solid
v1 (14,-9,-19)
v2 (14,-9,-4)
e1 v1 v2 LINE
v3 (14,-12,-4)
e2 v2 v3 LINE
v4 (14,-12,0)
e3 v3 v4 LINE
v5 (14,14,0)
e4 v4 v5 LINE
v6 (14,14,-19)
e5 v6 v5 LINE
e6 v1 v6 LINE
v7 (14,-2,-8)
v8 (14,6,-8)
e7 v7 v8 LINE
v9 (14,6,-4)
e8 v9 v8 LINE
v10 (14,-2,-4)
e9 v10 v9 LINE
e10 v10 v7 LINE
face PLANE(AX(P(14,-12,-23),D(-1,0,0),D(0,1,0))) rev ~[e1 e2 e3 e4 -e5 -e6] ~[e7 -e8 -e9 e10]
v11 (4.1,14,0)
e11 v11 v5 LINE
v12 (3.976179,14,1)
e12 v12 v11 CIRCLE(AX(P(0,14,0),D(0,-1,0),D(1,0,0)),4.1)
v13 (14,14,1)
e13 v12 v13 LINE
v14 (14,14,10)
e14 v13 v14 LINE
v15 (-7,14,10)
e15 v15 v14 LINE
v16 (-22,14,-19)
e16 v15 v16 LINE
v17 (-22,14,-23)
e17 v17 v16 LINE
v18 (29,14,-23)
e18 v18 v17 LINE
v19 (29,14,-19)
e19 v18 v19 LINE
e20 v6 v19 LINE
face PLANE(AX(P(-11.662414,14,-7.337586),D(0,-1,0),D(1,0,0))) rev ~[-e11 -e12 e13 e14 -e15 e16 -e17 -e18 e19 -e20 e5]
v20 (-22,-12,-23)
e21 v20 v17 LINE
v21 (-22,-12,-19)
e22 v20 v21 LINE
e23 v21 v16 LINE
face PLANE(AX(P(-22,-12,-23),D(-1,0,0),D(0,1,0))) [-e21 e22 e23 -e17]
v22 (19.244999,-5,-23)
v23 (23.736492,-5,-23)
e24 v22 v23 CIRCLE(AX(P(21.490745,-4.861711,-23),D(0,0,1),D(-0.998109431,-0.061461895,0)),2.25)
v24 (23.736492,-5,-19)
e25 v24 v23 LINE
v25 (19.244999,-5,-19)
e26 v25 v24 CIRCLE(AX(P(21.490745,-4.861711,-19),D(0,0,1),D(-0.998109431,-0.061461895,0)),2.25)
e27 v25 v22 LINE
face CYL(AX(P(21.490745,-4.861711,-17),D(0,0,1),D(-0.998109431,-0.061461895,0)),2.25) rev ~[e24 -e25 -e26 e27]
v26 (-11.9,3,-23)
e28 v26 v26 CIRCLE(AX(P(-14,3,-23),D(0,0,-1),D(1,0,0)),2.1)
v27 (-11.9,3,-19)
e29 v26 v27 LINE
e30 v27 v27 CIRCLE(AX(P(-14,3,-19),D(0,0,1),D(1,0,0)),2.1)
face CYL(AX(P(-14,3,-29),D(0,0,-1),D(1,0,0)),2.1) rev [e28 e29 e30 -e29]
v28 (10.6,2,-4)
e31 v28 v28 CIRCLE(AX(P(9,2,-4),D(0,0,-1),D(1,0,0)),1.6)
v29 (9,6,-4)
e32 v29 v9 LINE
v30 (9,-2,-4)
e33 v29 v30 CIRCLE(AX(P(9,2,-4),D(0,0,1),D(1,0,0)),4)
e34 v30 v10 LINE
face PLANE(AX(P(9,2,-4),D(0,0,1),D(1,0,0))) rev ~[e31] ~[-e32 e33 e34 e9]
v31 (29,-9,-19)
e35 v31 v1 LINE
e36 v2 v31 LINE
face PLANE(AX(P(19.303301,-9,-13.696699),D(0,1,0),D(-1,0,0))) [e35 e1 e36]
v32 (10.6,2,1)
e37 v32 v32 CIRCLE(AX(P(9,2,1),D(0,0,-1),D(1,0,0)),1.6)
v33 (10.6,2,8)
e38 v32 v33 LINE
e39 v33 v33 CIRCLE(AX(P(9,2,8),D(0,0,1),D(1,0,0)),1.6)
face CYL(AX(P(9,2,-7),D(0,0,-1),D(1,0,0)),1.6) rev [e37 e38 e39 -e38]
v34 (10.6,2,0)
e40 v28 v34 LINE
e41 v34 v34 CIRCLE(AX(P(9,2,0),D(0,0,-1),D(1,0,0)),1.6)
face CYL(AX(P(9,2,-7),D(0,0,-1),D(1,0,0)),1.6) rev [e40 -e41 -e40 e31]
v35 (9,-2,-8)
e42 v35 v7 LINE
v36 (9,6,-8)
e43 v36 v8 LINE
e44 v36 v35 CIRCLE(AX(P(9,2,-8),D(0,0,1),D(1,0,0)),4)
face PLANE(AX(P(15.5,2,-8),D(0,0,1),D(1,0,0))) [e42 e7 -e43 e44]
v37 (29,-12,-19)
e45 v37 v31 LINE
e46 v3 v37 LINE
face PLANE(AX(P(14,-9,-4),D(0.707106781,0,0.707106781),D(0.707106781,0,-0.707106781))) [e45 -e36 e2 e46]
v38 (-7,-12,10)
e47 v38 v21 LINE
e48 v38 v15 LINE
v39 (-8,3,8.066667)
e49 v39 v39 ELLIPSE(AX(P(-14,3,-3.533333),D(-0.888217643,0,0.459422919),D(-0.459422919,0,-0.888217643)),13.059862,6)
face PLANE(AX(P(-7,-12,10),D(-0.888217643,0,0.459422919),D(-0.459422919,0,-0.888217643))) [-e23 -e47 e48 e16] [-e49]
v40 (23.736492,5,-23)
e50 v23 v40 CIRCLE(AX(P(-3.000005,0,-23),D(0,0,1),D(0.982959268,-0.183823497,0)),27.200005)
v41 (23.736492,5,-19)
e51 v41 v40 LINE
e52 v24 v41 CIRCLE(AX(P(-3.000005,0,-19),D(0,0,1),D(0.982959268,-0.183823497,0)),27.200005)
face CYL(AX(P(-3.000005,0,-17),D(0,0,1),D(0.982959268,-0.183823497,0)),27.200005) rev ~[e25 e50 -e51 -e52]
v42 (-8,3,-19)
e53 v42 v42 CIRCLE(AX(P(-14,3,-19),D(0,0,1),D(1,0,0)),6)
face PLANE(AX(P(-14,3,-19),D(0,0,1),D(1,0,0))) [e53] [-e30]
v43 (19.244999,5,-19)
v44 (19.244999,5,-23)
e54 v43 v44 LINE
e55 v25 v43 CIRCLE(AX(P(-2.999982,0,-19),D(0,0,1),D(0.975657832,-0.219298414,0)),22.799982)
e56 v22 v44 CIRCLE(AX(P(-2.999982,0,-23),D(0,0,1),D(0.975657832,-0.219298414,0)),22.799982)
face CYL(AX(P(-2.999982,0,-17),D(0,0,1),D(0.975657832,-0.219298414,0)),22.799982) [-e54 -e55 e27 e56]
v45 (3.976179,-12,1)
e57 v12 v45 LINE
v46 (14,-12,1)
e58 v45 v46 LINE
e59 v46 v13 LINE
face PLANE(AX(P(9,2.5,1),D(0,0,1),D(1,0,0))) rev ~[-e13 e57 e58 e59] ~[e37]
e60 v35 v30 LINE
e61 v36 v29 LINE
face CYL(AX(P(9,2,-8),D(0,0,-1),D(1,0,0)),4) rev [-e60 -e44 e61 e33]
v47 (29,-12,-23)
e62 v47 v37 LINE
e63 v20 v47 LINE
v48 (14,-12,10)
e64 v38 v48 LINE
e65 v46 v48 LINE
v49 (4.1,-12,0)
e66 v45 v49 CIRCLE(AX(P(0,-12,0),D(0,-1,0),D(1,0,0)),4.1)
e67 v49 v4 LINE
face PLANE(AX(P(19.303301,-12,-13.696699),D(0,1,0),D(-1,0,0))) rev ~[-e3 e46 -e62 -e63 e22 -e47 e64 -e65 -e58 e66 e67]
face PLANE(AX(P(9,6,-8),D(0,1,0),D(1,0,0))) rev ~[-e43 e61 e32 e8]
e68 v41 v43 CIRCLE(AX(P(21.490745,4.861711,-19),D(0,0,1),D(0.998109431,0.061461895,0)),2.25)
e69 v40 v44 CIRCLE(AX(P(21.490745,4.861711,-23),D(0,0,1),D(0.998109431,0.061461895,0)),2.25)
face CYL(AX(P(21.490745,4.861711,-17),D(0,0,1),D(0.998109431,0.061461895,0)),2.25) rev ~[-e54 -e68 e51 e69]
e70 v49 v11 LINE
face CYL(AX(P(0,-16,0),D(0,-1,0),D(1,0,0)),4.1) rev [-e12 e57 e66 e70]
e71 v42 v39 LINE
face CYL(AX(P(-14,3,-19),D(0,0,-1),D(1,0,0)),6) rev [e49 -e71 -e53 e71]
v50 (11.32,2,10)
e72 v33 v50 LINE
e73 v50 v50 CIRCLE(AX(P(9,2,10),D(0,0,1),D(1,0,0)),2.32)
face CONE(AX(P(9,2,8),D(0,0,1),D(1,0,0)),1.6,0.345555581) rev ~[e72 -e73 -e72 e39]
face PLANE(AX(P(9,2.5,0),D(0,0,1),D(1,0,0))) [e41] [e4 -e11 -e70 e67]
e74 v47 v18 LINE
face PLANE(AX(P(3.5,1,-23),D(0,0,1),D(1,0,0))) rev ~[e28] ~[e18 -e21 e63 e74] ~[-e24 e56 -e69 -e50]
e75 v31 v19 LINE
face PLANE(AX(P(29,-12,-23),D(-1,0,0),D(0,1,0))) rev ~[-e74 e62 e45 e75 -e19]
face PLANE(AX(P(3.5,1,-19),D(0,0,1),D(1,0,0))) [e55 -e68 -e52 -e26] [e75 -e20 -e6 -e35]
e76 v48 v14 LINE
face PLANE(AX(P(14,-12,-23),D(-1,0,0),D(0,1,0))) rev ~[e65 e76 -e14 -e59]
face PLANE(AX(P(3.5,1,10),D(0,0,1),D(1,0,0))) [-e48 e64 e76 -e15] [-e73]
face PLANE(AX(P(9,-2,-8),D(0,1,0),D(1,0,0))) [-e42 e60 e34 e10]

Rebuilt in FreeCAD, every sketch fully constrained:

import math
import FreeCAD as App
import Part
import Sketcher

V = App.Vector
Q = App.Units.Quantity

doc = App.newDocument("Part")
body = doc.addObject("PartDesign::Body", "Body")

# Sketch on XY plane
sketch1 = body.newObject("Sketcher::SketchObject", "Sketch")
sketch1.AttachmentSupport = (doc.getObject("XY_Plane"), [""])
sketch1.MapMode = "FlatFace"
sketch1.AttachmentOffset = App.Placement(V(0, 0, 10), App.Rotation())
sketch1.addGeometry(Part.Circle(V(0, 0, 0), V(0, 0, 1), 6), False)
sketch1.addConstraint(Sketcher.Constraint("Coincident", 0, 3, -1, 1))
sketch1.addConstraint(Sketcher.Constraint("Diameter", 0, Q("12 mm")))
pad1 = body.newObject("PartDesign::Pad", "Pad")
pad1.Profile = sketch1
pad1.Length = 30
body2 = doc.addObject("PartDesign::Body", "Body001")

# Sketch on XY plane
sketch2 = body2.newObject("Sketcher::SketchObject", "Sketch001")
sketch2.AttachmentSupport = (doc.getObject("XY_Plane001"), [""])
sketch2.MapMode = "FlatFace"
sketch2.addGeometry(Part.Circle(V(0, 0, 0), V(0, 0, 1), 2.1), False)
sketch2.addConstraint(Sketcher.Constraint("Coincident", 0, 3, -1, 1))
sketch2.addConstraint(Sketcher.Constraint("Diameter", 0, Q("4.2 mm")))
pad2 = body2.newObject("PartDesign::Pad", "Pad001")
pad2.Profile = sketch2
pad2.Length = 10
doc.recompute()

boolean = body2.newObject("PartDesign::Boolean", "Boolean")
boolean.Type = "Fuse"
boolean.addObjects([body])
body3 = doc.addObject("PartDesign::Body", "Body002")
doc.recompute()

body2.Placement = App.Placement(V(-14, 12, -29), App.Rotation(V(0, 0, 1), 0))
boolean2 = body3.newObject("PartDesign::Boolean", "Boolean001")
boolean2.Type = "Fuse"
boolean2.addObjects([body2])
body4 = doc.addObject("PartDesign::Body", "Body003")

# Sketch on XY plane
sketch3 = body4.newObject("Sketcher::SketchObject", "Sketch002")
sketch3.AttachmentSupport = (doc.getObject("XY_Plane003"), [""])
sketch3.MapMode = "FlatFace"
sketch3.addGeometry(Part.Circle(V(0, 0, 0), V(0, 0, 1), 1.6), False)
sketch3.addConstraint(Sketcher.Constraint("Coincident", 0, 3, -1, 1))
sketch3.addConstraint(Sketcher.Constraint("Diameter", 0, Q("3.2 mm")))
pad3 = body4.newObject("PartDesign::Pad", "Pad002")
pad3.Profile = sketch3
pad3.Length = 15
body5 = doc.addObject("PartDesign::Body", "Body004")

# Sketch on XZ plane
sketch4 = body5.newObject("Sketcher::SketchObject", "Sketch003")
sketch4.AttachmentSupport = (doc.getObject("XZ_Plane004"), [""])
sketch4.MapMode = "FlatFace"
sketch4.addGeometry(Part.LineSegment(V(0, 15, 0), V(1.6, 15, 0)), False)
sketch4.addGeometry(Part.LineSegment(V(1.6, 15, 0), V(2.5, 17.5, 0)), False)
sketch4.addGeometry(Part.LineSegment(V(2.5, 17.5, 0), V(0, 17.5, 0)), False)
sketch4.addGeometry(Part.LineSegment(V(0, 17.5, 0), V(0, 15, 0)), False)
sketch4.addConstraint(Sketcher.Constraint("Coincident", 0, 2, 1, 1))
sketch4.addConstraint(Sketcher.Constraint("Coincident", 1, 2, 2, 1))
sketch4.addConstraint(Sketcher.Constraint("Coincident", 2, 2, 3, 1))
sketch4.addConstraint(Sketcher.Constraint("Coincident", 3, 2, 0, 1))
sketch4.addConstraint(Sketcher.Constraint("Horizontal", 0))
sketch4.addConstraint(Sketcher.Constraint("Horizontal", 2))
sketch4.addConstraint(Sketcher.Constraint("Vertical", 3))
sketch4.addConstraint(Sketcher.Constraint("PointOnObject", 2, 2, -2))
sketch4.addConstraint(Sketcher.Constraint("Equal", 2, 3))
sketch4.addConstraint(Sketcher.Constraint("DistanceX", 0, 1, 0, 2, Q("1.6 mm")))
sketch4.addConstraint(Sketcher.Constraint("DistanceX", 2, 2, 2, 1, Q("2.5 mm")))
sketch4.addConstraint(Sketcher.Constraint("DistanceY", -1, 1, 0, 2, Q("15 mm")))
revolution = body5.newObject("PartDesign::Revolution", "Revolution")
revolution.Profile = sketch4
revolution.ReferenceAxis = (sketch4, ["V_Axis"])
revolution.Angle = 360
doc.recompute()

boolean3 = body5.newObject("PartDesign::Boolean", "Boolean002")
boolean3.Type = "Fuse"
boolean3.addObjects([body4])
body6 = doc.addObject("PartDesign::Body", "Body005")
doc.recompute()

body5.Placement = App.Placement(V(9, 11, -7), App.Rotation(V(0, 0, 1), 0))
boolean4 = body6.newObject("PartDesign::Boolean", "Boolean003")
boolean4.Type = "Fuse"
boolean4.addObjects([body5])
body7 = doc.addObject("PartDesign::Body", "Body006")

# Sketch on XY plane
sketch5 = body7.newObject("Sketcher::SketchObject", "Sketch004")
sketch5.AttachmentSupport = (doc.getObject("XY_Plane006"), [""])
sketch5.MapMode = "FlatFace"
sketch5.AttachmentOffset = App.Placement(V(0, 0, -8), App.Rotation())
sketch5.addGeometry(Part.Circle(V(9, 11, 0), V(0, 0, 1), 4), False)
sketch5.addConstraint(Sketcher.Constraint("Diameter", 0, Q("8 mm")))
sketch5.addConstraint(Sketcher.Constraint("DistanceX", -1, 1, 0, 3, Q("9 mm")))
sketch5.addConstraint(Sketcher.Constraint("DistanceY", -1, 1, 0, 3, Q("11 mm")))
pad4 = body7.newObject("PartDesign::Pad", "Pad003")
pad4.Profile = sketch5
pad4.Length = 4
body8 = doc.addObject("PartDesign::Body", "Body007")

# Sketch on XY plane
sketch6 = body8.newObject("Sketcher::SketchObject", "Sketch005")
sketch6.AttachmentSupport = (doc.getObject("XY_Plane007"), [""])
sketch6.MapMode = "FlatFace"
sketch6.AttachmentOffset = App.Placement(V(0, 0, -8), App.Rotation())
sketch6.addGeometry(Part.LineSegment(V(9, 15, 0), V(9, 7, 0)), False)
sketch6.addGeometry(Part.LineSegment(V(9, 7, 0), V(22, 7, 0)), False)
sketch6.addGeometry(Part.LineSegment(V(22, 7, 0), V(22, 15, 0)), False)
sketch6.addGeometry(Part.LineSegment(V(22, 15, 0), V(9, 15, 0)), False)
sketch6.addConstraint(Sketcher.Constraint("Coincident", 0, 2, 1, 1))
sketch6.addConstraint(Sketcher.Constraint("Coincident", 1, 2, 2, 1))
sketch6.addConstraint(Sketcher.Constraint("Coincident", 2, 2, 3, 1))
sketch6.addConstraint(Sketcher.Constraint("Coincident", 3, 2, 0, 1))
sketch6.addConstraint(Sketcher.Constraint("Vertical", 0))
sketch6.addConstraint(Sketcher.Constraint("Horizontal", 1))
sketch6.addConstraint(Sketcher.Constraint("Vertical", 2))
sketch6.addConstraint(Sketcher.Constraint("Horizontal", 3))
sketch6.addConstraint(Sketcher.Constraint("DistanceX", 1, 1, 1, 2, Q("13 mm")))
sketch6.addConstraint(Sketcher.Constraint("DistanceY", 0, 2, 0, 1, Q("8 mm")))
sketch6.addConstraint(Sketcher.Constraint("DistanceX", -1, 1, 0, 2, Q("9 mm")))
sketch6.addConstraint(Sketcher.Constraint("DistanceY", -1, 1, 0, 2, Q("7 mm")))
pad5 = body8.newObject("PartDesign::Pad", "Pad004")
pad5.Profile = sketch6
pad5.Length = 4
doc.recompute()

boolean5 = body8.newObject("PartDesign::Boolean", "Boolean004")
boolean5.Type = "Fuse"
boolean5.addObjects([body7])
body9 = doc.addObject("PartDesign::Body", "Body008")

# Sketch on XZ plane
sketch7 = body9.newObject("Sketcher::SketchObject", "Sketch006")
sketch7.AttachmentSupport = (doc.getObject("XZ_Plane008"), [""])
sketch7.MapMode = "FlatFace"
sketch7.addGeometry(Part.LineSegment(V(-22, -19, 0), V(-7, -19, 0)), False)
sketch7.addGeometry(Part.LineSegment(V(-7, -19, 0), V(-7, -4, 0)), False)
sketch7.addGeometry(Part.LineSegment(V(-7, -4, 0), V(-22, -19, 0)), False)
sketch7.addConstraint(Sketcher.Constraint("Coincident", 0, 2, 1, 1))
sketch7.addConstraint(Sketcher.Constraint("Coincident", 1, 2, 2, 1))
sketch7.addConstraint(Sketcher.Constraint("Coincident", 2, 2, 0, 1))
sketch7.addConstraint(Sketcher.Constraint("Horizontal", 0))
sketch7.addConstraint(Sketcher.Constraint("Vertical", 1))
sketch7.addConstraint(Sketcher.Constraint("Equal", 0, 1))
sketch7.addConstraint(Sketcher.Constraint("DistanceX", 0, 1, 0, 2, Q("15 mm")))
sketch7.addConstraint(Sketcher.Constraint("DistanceX", 0, 2, -1, 1, Q("7 mm")))
sketch7.addConstraint(Sketcher.Constraint("DistanceY", 0, 2, -1, 1, Q("19 mm")))
pad6 = body9.newObject("PartDesign::Pad", "Pad005")
pad6.Profile = sketch7
pad6.Length = 3
pad6.Reversed = True
body10 = doc.addObject("PartDesign::Body", "Body009")
doc.recompute()

body9.Placement = App.Placement(V(7, 0, 0), App.Rotation(V(0, 0, 1), 180))
boolean6 = body10.newObject("PartDesign::Boolean", "Boolean005")
boolean6.Type = "Fuse"
boolean6.addObjects([body9])
body11 = doc.addObject("PartDesign::Body", "Body010")

# Sketch on XY plane
sketch8 = body11.newObject("Sketcher::SketchObject", "Sketch007")
sketch8.AttachmentSupport = (doc.getObject("XY_Plane010"), [""])
sketch8.MapMode = "FlatFace"
sketch8.addGeometry(Part.ArcOfCircle(Part.Circle(V(9, 15, 0), V(0, 0, 1), 27.2), math.radians(-11), math.radians(11)), False)
sketch8.addGeometry(Part.ArcOfCircle(Part.Circle(V(33.5, 19.9, 0), V(0, 0, 1), 2.3), math.radians(4), math.radians(176)), False)
sketch8.addGeometry(Part.ArcOfCircle(Part.Circle(V(9, 15, 0), V(0, 0, 1), 22.8), math.radians(-13), math.radians(13)), False)
sketch8.addGeometry(Part.ArcOfCircle(Part.Circle(V(33.5, 10.1, 0), V(0, 0, 1), 2.3), math.radians(-176), math.radians(-4)), False)
sketch8.addConstraint(Sketcher.Constraint("Coincident", 0, 2, 1, 1))
sketch8.addConstraint(Sketcher.Constraint("Coincident", 1, 2, 2, 2))
sketch8.addConstraint(Sketcher.Constraint("Coincident", 2, 1, 3, 1))
sketch8.addConstraint(Sketcher.Constraint("Coincident", 3, 2, 0, 1))
sketch8.addConstraint(Sketcher.Constraint("Equal", 1, 3))
sketch8.addConstraint(Sketcher.Constraint("Horizontal", 0, 3, 2, 3))
sketch8.addConstraint(Sketcher.Constraint("Horizontal", 0, 2, 1, 2))
sketch8.addConstraint(Sketcher.Constraint("Horizontal", 2, 1, 3, 2))
sketch8.addConstraint(Sketcher.Constraint("Vertical", 1, 3, 3, 3))
sketch8.addConstraint(Sketcher.Constraint("Radius", 1, Q("2.25 mm")))
sketch8.addConstraint(Sketcher.Constraint("DistanceY", -1, 1, 0, 3, Q("15 mm")))
sketch8.addConstraint(Sketcher.Constraint("DistanceY", -1, 1, 0, 2, Q("20 mm")))
sketch8.addConstraint(Sketcher.Constraint("DistanceX", -1, 1, 1, 2, Q("31.244999 mm")))
sketch8.addConstraint(Sketcher.Constraint("Radius", 0, Q("27.200005 mm")))
sketch8.addConstraint(Sketcher.Constraint("Radius", 2, Q("22.799982 mm")))
sketch8.addConstraint(Sketcher.Constraint("DistanceY", -1, 1, 1, 3, Q("19.861711 mm")))
pad7 = body11.newObject("PartDesign::Pad", "Pad006")
pad7.Profile = sketch8
pad7.Length = 10
pad7.Reversed = True
body12 = doc.addObject("PartDesign::Body", "Body011")
doc.recompute()

body11.Placement = App.Placement(V(-12, -3, -17), App.Rotation(V(0, 0, 1), 0))
boolean7 = body12.newObject("PartDesign::Boolean", "Boolean006")
boolean7.Type = "Fuse"
boolean7.addObjects([body11])
body13 = doc.addObject("PartDesign::Body", "Body012")

# Sketch on XY plane
sketch9 = body13.newObject("Sketcher::SketchObject", "Sketch008")
sketch9.AttachmentSupport = (doc.getObject("XY_Plane012"), [""])
sketch9.MapMode = "FlatFace"
sketch9.AttachmentOffset = App.Placement(V(0, 0, -23), App.Rotation())
sketch9.addGeometry(Part.LineSegment(V(-22, 26, 0), V(-22, 0, 0)), False)
sketch9.addGeometry(Part.LineSegment(V(-22, 0, 0), V(29, 0, 0)), False)
sketch9.addGeometry(Part.LineSegment(V(29, 0, 0), V(29, 26, 0)), False)
sketch9.addGeometry(Part.LineSegment(V(29, 26, 0), V(-22, 26, 0)), False)
sketch9.addConstraint(Sketcher.Constraint("Coincident", 0, 2, 1, 1))
sketch9.addConstraint(Sketcher.Constraint("Coincident", 1, 2, 2, 1))
sketch9.addConstraint(Sketcher.Constraint("Coincident", 2, 2, 3, 1))
sketch9.addConstraint(Sketcher.Constraint("Coincident", 3, 2, 0, 1))
sketch9.addConstraint(Sketcher.Constraint("Vertical", 0))
sketch9.addConstraint(Sketcher.Constraint("Horizontal", 1))
sketch9.addConstraint(Sketcher.Constraint("Vertical", 2))
sketch9.addConstraint(Sketcher.Constraint("Horizontal", 3))
sketch9.addConstraint(Sketcher.Constraint("PointOnObject", 0, 2, -1))
sketch9.addConstraint(Sketcher.Constraint("DistanceX", 1, 1, 1, 2, Q("51 mm")))
sketch9.addConstraint(Sketcher.Constraint("DistanceY", 0, 2, 0, 1, Q("26 mm")))
sketch9.addConstraint(Sketcher.Constraint("DistanceX", 0, 2, -1, 1, Q("22 mm")))
pad8 = body13.newObject("PartDesign::Pad", "Pad007")
pad8.Profile = sketch9
pad8.Length = 4
doc.recompute()

boolean8 = body13.newObject("PartDesign::Boolean", "Boolean007")
boolean8.Type = "Cut"
boolean8.addObjects([body12])
body14 = doc.addObject("PartDesign::Body", "Body013")
doc.recompute()

body13.Placement = App.Placement(V(0, -3, 0), App.Rotation(V(0, 0, 1), 0))
boolean9 = body14.newObject("PartDesign::Boolean", "Boolean008")
boolean9.Type = "Fuse"
boolean9.addObjects([body13])
body15 = doc.addObject("PartDesign::Body", "Body014")

# Sketch on XZ plane
sketch10 = body15.newObject("Sketcher::SketchObject", "Sketch009")
sketch10.AttachmentSupport = (doc.getObject("XZ_Plane014"), [""])
sketch10.MapMode = "FlatFace"
sketch10.addGeometry(Part.LineSegment(V(-22, -19, 0), V(-7, -19, 0)), False)
sketch10.addGeometry(Part.LineSegment(V(-7, -19, 0), V(-7, 10, 0)), False)
sketch10.addGeometry(Part.LineSegment(V(-7, 10, 0), V(-22, -19, 0)), False)
sketch10.addConstraint(Sketcher.Constraint("Coincident", 0, 2, 1, 1))
sketch10.addConstraint(Sketcher.Constraint("Coincident", 1, 2, 2, 1))
sketch10.addConstraint(Sketcher.Constraint("Coincident", 2, 2, 0, 1))
sketch10.addConstraint(Sketcher.Constraint("Horizontal", 0))
sketch10.addConstraint(Sketcher.Constraint("Vertical", 1))
sketch10.addConstraint(Sketcher.Constraint("DistanceX", 0, 1, 0, 2, Q("15 mm")))
sketch10.addConstraint(Sketcher.Constraint("DistanceY", 1, 1, 1, 2, Q("29 mm")))
sketch10.addConstraint(Sketcher.Constraint("DistanceX", 0, 2, -1, 1, Q("7 mm")))
sketch10.addConstraint(Sketcher.Constraint("DistanceY", 0, 2, -1, 1, Q("19 mm")))
pad9 = body15.newObject("PartDesign::Pad", "Pad008")
pad9.Profile = sketch10
pad9.Length = 26
pad9.Reversed = True
body16 = doc.addObject("PartDesign::Body", "Body015")
doc.recompute()

body15.Placement = App.Placement(V(0, -3, 0), App.Rotation(V(0, 0, 1), 0))
boolean10 = body16.newObject("PartDesign::Boolean", "Boolean009")
boolean10.Type = "Fuse"
boolean10.addObjects([body15])
body17 = doc.addObject("PartDesign::Body", "Body016")

# Sketch on XZ plane
sketch11 = body17.newObject("Sketcher::SketchObject", "Sketch010")
sketch11.AttachmentSupport = (doc.getObject("XZ_Plane016"), [""])
sketch11.MapMode = "FlatFace"
sketch11.AttachmentOffset = App.Placement(V(0, 0, 7), App.Rotation())
sketch11.addGeometry(Part.Circle(V(0, 0, 0), V(0, 0, 1), 4.1), False)
sketch11.addConstraint(Sketcher.Constraint("Coincident", 0, 3, -1, 1))
sketch11.addConstraint(Sketcher.Constraint("Diameter", 0, Q("8.2 mm")))
pad10 = body17.newObject("PartDesign::Pad", "Pad009")
pad10.Profile = sketch11
pad10.Length = 240
pad10.Reversed = True
body18 = doc.addObject("PartDesign::Body", "Body017")

# Sketch on XY plane
sketch12 = body18.newObject("Sketcher::SketchObject", "Sketch011")
sketch12.AttachmentSupport = (doc.getObject("XY_Plane017"), [""])
sketch12.MapMode = "FlatFace"
sketch12.addGeometry(Part.LineSegment(V(3, 29, 0), V(3, -6, 0)), False)
sketch12.addGeometry(Part.LineSegment(V(3, -6, 0), V(15, -6, 0)), False)
sketch12.addGeometry(Part.LineSegment(V(15, -6, 0), V(15, 29, 0)), False)
sketch12.addGeometry(Part.LineSegment(V(15, 29, 0), V(3, 29, 0)), False)
sketch12.addConstraint(Sketcher.Constraint("Coincident", 0, 2, 1, 1))
sketch12.addConstraint(Sketcher.Constraint("Coincident", 1, 2, 2, 1))
sketch12.addConstraint(Sketcher.Constraint("Coincident", 2, 2, 3, 1))
sketch12.addConstraint(Sketcher.Constraint("Coincident", 3, 2, 0, 1))
sketch12.addConstraint(Sketcher.Constraint("Vertical", 0))
sketch12.addConstraint(Sketcher.Constraint("Horizontal", 1))
sketch12.addConstraint(Sketcher.Constraint("Vertical", 2))
sketch12.addConstraint(Sketcher.Constraint("Horizontal", 3))
sketch12.addConstraint(Sketcher.Constraint("DistanceX", 1, 1, 1, 2, Q("12 mm")))
sketch12.addConstraint(Sketcher.Constraint("DistanceY", 0, 2, 0, 1, Q("35 mm")))
sketch12.addConstraint(Sketcher.Constraint("DistanceX", -1, 1, 0, 2, Q("3 mm")))
sketch12.addConstraint(Sketcher.Constraint("DistanceY", 0, 2, -1, 1, Q("6 mm")))
pad11 = body18.newObject("PartDesign::Pad", "Pad010")
pad11.Profile = sketch12
pad11.Length = 1
body19 = doc.addObject("PartDesign::Body", "Body018")

# Sketch on XY plane
sketch13 = body19.newObject("Sketcher::SketchObject", "Sketch012")
sketch13.AttachmentSupport = (doc.getObject("XY_Plane018"), [""])
sketch13.MapMode = "FlatFace"
sketch13.AttachmentOffset = App.Placement(V(0, 0, -23), App.Rotation())
sketch13.addGeometry(Part.LineSegment(V(-7, 23, 0), V(-7, -3, 0)), False)
sketch13.addGeometry(Part.LineSegment(V(-7, -3, 0), V(14, -3, 0)), False)
sketch13.addGeometry(Part.LineSegment(V(14, -3, 0), V(14, 23, 0)), False)
sketch13.addGeometry(Part.LineSegment(V(14, 23, 0), V(-7, 23, 0)), False)
sketch13.addConstraint(Sketcher.Constraint("Coincident", 0, 2, 1, 1))
sketch13.addConstraint(Sketcher.Constraint("Coincident", 1, 2, 2, 1))
sketch13.addConstraint(Sketcher.Constraint("Coincident", 2, 2, 3, 1))
sketch13.addConstraint(Sketcher.Constraint("Coincident", 3, 2, 0, 1))
sketch13.addConstraint(Sketcher.Constraint("Vertical", 0))
sketch13.addConstraint(Sketcher.Constraint("Horizontal", 1))
sketch13.addConstraint(Sketcher.Constraint("Vertical", 2))
sketch13.addConstraint(Sketcher.Constraint("Horizontal", 3))
sketch13.addConstraint(Sketcher.Constraint("DistanceX", 1, 1, 1, 2, Q("21 mm")))
sketch13.addConstraint(Sketcher.Constraint("DistanceY", 0, 2, 0, 1, Q("26 mm")))
sketch13.addConstraint(Sketcher.Constraint("DistanceX", 0, 2, -1, 1, Q("7 mm")))
sketch13.addConstraint(Sketcher.Constraint("DistanceY", 0, 2, -1, 1, Q("3 mm")))
pad12 = body19.newObject("PartDesign::Pad", "Pad011")
pad12.Profile = sketch13
pad12.Length = 33
doc.recompute()

boolean11 = body19.newObject("PartDesign::Boolean", "Boolean010")
boolean11.Type = "Cut"
boolean11.addObjects([body18])
doc.recompute()

boolean12 = body19.newObject("PartDesign::Boolean", "Boolean011")
boolean12.Type = "Cut"
boolean12.addObjects([body17])
doc.recompute()

boolean13 = body19.newObject("PartDesign::Boolean", "Boolean012")
boolean13.Type = "Fuse"
boolean13.addObjects([body14])
doc.recompute()

boolean14 = body19.newObject("PartDesign::Boolean", "Boolean013")
boolean14.Type = "Fuse"
boolean14.addObjects([body16])
doc.recompute()

boolean15 = body19.newObject("PartDesign::Boolean", "Boolean014")
boolean15.Type = "Fuse"
boolean15.addObjects([body10])
doc.recompute()

boolean16 = body19.newObject("PartDesign::Boolean", "Boolean015")
boolean16.Type = "Cut"
boolean16.addObjects([body8])
doc.recompute()

boolean17 = body19.newObject("PartDesign::Boolean", "Boolean016")
boolean17.Type = "Cut"
boolean17.addObjects([body6])
doc.recompute()

boolean18 = body19.newObject("PartDesign::Boolean", "Boolean017")
boolean18.Type = "Cut"
boolean18.addObjects([body3])
body20 = doc.addObject("PartDesign::Body", "Body019")
doc.recompute()

body19.Placement = App.Placement(V(0, -9, 0), App.Rotation(V(0, 0, 1), 0))
boolean19 = body20.newObject("PartDesign::Boolean", "Boolean018")
boolean19.Type = "Fuse"
boolean19.addObjects([body19])

doc.recompute()
